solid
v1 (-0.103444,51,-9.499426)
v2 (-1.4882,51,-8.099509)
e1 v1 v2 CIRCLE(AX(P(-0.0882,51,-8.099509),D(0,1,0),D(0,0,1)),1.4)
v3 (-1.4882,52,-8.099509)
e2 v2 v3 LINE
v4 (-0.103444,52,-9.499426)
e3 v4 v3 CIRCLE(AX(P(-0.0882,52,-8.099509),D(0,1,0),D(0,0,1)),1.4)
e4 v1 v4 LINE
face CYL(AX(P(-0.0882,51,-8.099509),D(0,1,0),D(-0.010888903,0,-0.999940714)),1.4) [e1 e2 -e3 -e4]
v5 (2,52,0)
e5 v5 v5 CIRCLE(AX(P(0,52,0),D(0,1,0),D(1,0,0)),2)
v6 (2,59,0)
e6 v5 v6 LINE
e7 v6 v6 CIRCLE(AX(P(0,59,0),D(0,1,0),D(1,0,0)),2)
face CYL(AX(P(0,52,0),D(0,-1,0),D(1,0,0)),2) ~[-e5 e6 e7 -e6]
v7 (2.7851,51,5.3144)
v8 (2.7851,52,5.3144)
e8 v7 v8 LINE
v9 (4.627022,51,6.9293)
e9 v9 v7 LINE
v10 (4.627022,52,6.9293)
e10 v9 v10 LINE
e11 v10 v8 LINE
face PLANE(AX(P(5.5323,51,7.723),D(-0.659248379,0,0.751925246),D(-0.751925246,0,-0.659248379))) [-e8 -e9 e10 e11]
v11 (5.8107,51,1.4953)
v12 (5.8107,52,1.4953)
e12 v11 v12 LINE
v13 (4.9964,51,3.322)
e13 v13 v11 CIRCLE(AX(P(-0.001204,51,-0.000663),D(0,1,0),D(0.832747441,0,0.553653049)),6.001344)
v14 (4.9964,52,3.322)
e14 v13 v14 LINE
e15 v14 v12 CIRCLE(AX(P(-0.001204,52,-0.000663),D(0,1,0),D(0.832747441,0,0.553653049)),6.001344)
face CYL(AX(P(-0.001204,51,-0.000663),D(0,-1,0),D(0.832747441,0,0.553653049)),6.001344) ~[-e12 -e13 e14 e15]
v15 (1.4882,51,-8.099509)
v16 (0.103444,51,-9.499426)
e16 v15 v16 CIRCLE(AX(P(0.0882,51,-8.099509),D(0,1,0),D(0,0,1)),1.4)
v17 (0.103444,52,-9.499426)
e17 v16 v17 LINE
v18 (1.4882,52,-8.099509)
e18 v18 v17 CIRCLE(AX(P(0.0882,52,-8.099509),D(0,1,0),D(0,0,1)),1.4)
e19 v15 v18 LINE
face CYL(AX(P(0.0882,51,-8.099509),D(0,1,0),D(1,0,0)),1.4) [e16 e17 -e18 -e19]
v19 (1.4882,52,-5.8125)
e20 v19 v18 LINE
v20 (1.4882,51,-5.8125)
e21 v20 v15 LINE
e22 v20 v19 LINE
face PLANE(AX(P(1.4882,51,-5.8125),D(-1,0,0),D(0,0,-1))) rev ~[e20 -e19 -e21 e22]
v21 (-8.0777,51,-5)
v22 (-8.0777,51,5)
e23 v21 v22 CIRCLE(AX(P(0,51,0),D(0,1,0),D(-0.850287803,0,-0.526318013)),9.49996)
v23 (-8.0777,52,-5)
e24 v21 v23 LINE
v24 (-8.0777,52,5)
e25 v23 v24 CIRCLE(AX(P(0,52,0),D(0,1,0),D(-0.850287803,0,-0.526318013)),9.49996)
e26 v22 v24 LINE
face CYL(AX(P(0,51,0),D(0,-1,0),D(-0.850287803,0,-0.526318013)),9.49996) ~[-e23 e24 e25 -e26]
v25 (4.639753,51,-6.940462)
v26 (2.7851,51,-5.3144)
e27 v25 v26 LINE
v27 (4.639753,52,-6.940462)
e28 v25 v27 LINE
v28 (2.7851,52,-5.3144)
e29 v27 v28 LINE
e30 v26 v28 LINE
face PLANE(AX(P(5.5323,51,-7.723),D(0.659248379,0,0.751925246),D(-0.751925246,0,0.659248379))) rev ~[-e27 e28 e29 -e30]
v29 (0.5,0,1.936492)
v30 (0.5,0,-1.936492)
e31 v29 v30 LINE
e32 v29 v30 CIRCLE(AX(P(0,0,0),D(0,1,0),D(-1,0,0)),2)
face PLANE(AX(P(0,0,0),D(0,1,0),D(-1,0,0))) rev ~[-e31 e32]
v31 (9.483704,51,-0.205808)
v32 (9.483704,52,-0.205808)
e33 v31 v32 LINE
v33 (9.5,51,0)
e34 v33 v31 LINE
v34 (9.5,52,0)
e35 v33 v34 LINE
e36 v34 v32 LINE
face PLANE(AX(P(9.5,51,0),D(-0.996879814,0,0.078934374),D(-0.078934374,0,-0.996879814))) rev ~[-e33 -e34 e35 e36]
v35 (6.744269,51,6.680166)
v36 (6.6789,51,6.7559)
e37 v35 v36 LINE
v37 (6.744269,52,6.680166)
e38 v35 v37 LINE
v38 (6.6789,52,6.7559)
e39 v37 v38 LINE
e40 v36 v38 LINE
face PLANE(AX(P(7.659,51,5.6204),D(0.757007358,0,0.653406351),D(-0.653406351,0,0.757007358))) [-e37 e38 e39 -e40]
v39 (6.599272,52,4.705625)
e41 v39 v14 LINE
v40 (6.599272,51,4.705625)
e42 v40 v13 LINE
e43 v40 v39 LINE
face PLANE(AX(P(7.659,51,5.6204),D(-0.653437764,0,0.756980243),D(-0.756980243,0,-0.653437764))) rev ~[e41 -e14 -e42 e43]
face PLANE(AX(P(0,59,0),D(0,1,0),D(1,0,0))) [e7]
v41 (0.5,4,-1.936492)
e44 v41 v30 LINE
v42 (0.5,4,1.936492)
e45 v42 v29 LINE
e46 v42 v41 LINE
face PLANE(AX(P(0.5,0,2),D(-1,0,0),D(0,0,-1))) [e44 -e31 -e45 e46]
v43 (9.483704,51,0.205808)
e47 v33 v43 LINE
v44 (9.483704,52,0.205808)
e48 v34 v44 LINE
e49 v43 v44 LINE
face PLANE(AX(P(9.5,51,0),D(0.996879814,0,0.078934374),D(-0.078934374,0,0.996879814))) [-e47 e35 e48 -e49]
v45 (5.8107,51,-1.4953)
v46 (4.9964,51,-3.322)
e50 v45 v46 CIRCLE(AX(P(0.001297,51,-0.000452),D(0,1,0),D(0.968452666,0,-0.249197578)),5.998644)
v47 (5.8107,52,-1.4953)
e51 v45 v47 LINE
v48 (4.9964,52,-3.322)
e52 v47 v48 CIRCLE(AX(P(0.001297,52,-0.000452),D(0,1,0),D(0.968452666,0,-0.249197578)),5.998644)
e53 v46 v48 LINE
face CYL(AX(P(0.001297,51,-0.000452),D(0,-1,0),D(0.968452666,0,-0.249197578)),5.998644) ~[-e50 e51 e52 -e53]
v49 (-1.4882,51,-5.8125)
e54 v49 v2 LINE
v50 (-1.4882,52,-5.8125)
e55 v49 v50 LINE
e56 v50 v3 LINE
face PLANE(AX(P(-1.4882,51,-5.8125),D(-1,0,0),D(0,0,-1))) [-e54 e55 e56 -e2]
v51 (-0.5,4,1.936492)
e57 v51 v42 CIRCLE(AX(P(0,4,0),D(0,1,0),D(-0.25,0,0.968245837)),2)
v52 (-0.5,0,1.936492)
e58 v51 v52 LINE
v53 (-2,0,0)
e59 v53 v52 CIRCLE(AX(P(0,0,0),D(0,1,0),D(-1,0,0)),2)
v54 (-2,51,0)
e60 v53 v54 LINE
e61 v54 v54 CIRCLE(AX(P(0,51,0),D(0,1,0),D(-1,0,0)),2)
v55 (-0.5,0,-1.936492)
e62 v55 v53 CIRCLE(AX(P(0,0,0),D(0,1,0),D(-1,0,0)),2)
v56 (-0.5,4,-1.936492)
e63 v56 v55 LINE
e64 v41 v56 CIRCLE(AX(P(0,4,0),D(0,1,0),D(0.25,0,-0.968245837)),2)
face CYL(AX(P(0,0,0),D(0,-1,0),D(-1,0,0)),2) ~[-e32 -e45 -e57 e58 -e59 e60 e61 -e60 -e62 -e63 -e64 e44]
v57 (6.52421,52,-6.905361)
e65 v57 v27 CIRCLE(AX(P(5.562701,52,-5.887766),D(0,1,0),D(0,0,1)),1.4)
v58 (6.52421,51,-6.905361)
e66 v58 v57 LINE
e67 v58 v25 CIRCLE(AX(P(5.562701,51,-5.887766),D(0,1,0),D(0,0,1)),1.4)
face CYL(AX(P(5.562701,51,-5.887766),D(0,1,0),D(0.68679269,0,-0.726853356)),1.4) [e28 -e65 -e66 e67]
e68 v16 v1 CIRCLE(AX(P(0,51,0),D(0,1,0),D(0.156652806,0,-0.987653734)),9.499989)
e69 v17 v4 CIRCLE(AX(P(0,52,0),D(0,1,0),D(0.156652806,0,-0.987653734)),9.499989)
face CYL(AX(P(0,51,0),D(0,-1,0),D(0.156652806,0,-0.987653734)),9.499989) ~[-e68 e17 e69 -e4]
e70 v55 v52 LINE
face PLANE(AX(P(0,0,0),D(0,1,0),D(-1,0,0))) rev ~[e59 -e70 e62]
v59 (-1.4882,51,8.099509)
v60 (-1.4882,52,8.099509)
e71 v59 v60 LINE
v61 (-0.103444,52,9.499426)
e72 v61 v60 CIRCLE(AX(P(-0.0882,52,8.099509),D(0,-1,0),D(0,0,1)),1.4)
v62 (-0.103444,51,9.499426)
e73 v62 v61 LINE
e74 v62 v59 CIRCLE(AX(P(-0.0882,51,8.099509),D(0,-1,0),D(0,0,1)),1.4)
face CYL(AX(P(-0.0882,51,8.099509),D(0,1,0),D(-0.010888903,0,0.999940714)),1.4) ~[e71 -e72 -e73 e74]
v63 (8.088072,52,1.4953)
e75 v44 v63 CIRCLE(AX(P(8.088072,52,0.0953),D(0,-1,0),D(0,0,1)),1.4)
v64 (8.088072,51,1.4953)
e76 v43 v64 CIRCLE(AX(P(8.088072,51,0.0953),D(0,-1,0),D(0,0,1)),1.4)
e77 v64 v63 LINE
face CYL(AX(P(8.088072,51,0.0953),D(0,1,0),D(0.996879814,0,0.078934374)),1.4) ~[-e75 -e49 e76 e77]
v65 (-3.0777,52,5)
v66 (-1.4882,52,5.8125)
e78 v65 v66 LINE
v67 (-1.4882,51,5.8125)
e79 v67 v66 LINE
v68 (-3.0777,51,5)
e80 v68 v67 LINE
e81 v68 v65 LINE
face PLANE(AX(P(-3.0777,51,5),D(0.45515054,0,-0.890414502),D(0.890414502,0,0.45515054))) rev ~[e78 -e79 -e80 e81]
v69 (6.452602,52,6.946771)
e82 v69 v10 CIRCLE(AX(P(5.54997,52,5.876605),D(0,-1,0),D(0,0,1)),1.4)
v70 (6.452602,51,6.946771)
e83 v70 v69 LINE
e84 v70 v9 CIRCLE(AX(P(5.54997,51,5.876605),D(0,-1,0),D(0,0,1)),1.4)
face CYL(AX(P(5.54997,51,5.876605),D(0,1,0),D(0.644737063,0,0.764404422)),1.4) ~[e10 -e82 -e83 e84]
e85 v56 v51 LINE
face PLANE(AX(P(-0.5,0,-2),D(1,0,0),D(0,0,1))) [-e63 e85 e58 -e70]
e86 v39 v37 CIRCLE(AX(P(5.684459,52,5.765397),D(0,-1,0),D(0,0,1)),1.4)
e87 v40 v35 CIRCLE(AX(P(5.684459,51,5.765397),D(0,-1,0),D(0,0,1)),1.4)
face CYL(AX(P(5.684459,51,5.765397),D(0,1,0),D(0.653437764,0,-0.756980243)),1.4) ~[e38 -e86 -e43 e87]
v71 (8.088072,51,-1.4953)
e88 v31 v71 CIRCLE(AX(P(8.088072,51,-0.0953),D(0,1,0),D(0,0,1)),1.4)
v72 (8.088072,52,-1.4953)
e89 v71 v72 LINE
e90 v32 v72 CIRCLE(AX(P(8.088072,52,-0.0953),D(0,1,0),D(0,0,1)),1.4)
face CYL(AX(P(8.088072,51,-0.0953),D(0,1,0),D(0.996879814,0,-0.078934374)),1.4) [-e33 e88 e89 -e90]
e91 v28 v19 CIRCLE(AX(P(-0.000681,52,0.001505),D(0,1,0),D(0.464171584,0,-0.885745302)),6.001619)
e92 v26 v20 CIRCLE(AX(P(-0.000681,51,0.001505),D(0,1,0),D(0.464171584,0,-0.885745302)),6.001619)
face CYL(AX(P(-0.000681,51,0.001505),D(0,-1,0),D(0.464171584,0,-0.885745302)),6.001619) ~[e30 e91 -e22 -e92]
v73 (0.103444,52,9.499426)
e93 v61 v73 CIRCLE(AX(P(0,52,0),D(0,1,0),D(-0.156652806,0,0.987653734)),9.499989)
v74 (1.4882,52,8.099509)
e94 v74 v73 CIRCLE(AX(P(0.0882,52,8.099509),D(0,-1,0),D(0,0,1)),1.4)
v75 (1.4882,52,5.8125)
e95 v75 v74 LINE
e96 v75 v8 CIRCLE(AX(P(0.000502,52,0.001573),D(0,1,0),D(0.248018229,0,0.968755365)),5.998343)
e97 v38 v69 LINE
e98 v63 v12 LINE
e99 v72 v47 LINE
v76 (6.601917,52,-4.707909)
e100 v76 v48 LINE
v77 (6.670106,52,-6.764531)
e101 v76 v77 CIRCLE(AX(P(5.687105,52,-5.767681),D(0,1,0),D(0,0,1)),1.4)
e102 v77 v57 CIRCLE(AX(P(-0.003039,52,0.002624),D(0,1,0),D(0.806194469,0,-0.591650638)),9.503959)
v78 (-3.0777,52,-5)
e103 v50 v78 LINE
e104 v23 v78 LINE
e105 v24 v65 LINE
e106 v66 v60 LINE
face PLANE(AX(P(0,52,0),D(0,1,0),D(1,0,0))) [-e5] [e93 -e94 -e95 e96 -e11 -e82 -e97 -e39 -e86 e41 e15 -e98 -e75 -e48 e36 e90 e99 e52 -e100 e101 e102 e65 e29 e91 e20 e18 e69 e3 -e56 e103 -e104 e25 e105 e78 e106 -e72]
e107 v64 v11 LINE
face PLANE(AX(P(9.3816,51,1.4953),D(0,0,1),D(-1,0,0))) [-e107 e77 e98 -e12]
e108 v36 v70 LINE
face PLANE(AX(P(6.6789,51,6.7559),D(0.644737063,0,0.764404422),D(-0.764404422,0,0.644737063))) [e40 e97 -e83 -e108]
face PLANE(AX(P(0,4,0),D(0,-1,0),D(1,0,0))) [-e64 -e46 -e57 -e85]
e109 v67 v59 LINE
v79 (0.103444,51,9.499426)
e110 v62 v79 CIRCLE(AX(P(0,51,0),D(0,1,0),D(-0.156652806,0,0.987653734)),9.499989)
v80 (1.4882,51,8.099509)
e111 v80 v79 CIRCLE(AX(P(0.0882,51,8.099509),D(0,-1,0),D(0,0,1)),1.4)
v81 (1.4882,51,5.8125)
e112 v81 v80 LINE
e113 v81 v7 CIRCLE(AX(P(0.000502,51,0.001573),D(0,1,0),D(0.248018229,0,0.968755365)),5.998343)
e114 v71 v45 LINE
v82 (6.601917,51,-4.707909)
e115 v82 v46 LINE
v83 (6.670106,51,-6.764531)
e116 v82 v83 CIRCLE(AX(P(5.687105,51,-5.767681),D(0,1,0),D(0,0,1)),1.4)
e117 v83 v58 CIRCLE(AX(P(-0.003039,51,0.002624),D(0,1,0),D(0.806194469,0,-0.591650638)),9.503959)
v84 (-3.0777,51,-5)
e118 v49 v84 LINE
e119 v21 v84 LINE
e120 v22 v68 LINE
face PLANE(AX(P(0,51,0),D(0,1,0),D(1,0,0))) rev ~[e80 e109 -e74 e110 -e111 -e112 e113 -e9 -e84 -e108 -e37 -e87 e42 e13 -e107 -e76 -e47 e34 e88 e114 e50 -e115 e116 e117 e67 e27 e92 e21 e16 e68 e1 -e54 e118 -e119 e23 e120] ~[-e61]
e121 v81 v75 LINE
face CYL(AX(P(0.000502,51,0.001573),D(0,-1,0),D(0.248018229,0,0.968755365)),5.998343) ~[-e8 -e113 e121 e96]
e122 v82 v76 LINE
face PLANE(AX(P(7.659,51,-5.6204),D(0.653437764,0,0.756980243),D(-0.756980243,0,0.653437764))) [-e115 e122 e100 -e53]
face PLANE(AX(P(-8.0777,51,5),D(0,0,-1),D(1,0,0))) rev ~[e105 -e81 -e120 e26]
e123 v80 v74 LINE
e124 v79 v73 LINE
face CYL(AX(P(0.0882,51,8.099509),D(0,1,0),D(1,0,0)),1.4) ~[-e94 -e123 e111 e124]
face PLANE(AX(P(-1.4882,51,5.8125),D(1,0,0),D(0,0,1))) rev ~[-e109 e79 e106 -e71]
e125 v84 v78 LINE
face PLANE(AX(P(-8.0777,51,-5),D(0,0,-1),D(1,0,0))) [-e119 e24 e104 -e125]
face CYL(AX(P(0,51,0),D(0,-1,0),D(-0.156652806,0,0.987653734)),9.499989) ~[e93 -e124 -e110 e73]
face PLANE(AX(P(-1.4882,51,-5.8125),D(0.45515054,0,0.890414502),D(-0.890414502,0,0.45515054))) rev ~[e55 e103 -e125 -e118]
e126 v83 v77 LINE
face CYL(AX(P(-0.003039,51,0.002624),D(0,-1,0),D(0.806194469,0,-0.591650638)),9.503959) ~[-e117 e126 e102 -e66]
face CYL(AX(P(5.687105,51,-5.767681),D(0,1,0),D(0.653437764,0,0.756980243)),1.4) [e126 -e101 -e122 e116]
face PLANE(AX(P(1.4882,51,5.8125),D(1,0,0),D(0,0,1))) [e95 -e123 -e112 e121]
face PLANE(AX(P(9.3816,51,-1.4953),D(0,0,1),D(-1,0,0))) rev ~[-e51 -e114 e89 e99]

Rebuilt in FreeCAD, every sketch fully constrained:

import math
import FreeCAD as App
import Part
import Sketcher
Q = App.Units.Quantity


def edges_at(feature, points):
    """Names of the edges that pass closest to the given points."""
    edges = feature.Shape.Edges
    near = lambda p: min(range(len(edges)), key=lambda i: edges[i].distToShape(Part.Vertex(*p))[0])
    return sorted({f"Edge{near(p) + 1}" for p in points})


def add_polygon(sketch, points):
    """Adds a closed chain of lines whose ends are joined by coincident constraints."""
    first, n = sketch.GeometryCount, len(points)
    for a, b in zip(points, points[1:] + points[:1]):
        sketch.addGeometry(Part.LineSegment(App.Vector(*a, 0), App.Vector(*b, 0)), False)
    for i in range(n):
        sketch.addConstraint(Sketcher.Constraint("Coincident", first + i, 2, first + (i + 1) % n, 1))

doc = App.newDocument("Part")
body = doc.addObject("PartDesign::Body", "Body")

# Sketch on XZ plane
sketch1 = body.newObject("Sketcher::SketchObject", "Sketch")
sketch1.AttachmentSupport = (doc.getObject("XZ_Plane"), [""])
sketch1.MapMode = "FlatFace"
sketch1.addGeometry(Part.Circle(App.Vector(0, 0, 0), App.Vector(0, 0, 1), 2), False)
sketch1.addConstraint([
    Sketcher.Constraint("Coincident", 0, 3, -1, 1),
    Sketcher.Constraint("Diameter", 0, Q("4 mm")),
])
pad1 = body.newObject("PartDesign::Pad", "Pad")
pad1.Profile = sketch1
pad1.Length = 51
pad1.Reversed = True

# Sketch on XZ plane
sketch2 = body.newObject("Sketcher::SketchObject", "Sketch001")
sketch2.AttachmentSupport = (doc.getObject("XZ_Plane"), [""])
sketch2.MapMode = "FlatFace"
add_polygon(sketch2, [(0.5, 2), (-0.5, 2), (-0.5, -2), (0.5, -2)])  # lines 0-3
sketch2.addConstraint([
    Sketcher.Constraint("Horizontal", 0),
    Sketcher.Constraint("Vertical", 1),
    Sketcher.Constraint("Horizontal", 2),
    Sketcher.Constraint("Vertical", 3),
    Sketcher.Constraint("Symmetric", 0, 2, 2, 2, -1, 1),
    Sketcher.Constraint("DistanceX", 0, 2, 0, 1, Q("1 mm")),
    Sketcher.Constraint("DistanceY", 1, 2, 1, 1, Q("4 mm")),
])
pocket1 = body.newObject("PartDesign::Pocket", "Pocket")
pocket1.Profile = sketch2
pocket1.Length = 4

# Sketch on XZ plane
sketch3 = body.newObject("Sketcher::SketchObject", "Sketch002")
sketch3.AttachmentSupport = (doc.getObject("XZ_Plane"), [""])
sketch3.MapMode = "FlatFace"
sketch3.AttachmentOffset = App.Placement(App.Vector(0, 0, -51), App.Rotation())
sketch3.addGeometry([
    Part.LineSegment(App.Vector(9.3816, 1.4953, 0), App.Vector(9.5, 0, 0)),  # 0
    Part.LineSegment(App.Vector(9.5, 0, 0), App.Vector(9.3816, -1.4953, 0)),  # 1
    Part.LineSegment(App.Vector(9.3816, -1.4953, 0), App.Vector(5.8107, -1.4953, 0)),  # 2
    Part.ArcOfCircle(Part.Circle(App.Vector(0.001297, -0.000452, 0), App.Vector(0, 0, 1), 5.998644), math.radians(-33.622349), math.radians(-14.430034)),  # 3
    Part.LineSegment(App.Vector(4.9964, -3.322, 0), App.Vector(7.659, -5.6204, 0)),  # 4
    Part.ArcOfCircle(Part.Circle(App.Vector(-0.003039, 0.002624, 0), App.Vector(0, 0, 1), 9.503959), math.radians(-54.378745), math.radians(-36.27423)),  # 5
    Part.LineSegment(App.Vector(5.5323, -7.723, 0), App.Vector(2.7851, -5.3144, 0)),  # 6
    Part.ArcOfCircle(Part.Circle(App.Vector(-0.000681, 0.001505, 0), App.Vector(0, 0, 1), 6.001619), math.radians(-75.636082), math.radians(-62.343378)),  # 7
    Part.LineSegment(App.Vector(1.4882, -5.8125, 0), App.Vector(1.4882, -9.3827, 0)),  # 8
    Part.ArcOfCircle(Part.Circle(App.Vector(0, 0, 0), App.Vector(0, 0, 1), 9.499989), math.radians(-99.012666), math.radians(-80.987334)),  # 9
    Part.LineSegment(App.Vector(-1.4882, -9.3827, 0), App.Vector(-1.4882, -5.8125, 0)),  # 10
    Part.LineSegment(App.Vector(-1.4882, -5.8125, 0), App.Vector(-3.0777, -5, 0)),  # 11
    Part.LineSegment(App.Vector(-3.0777, -5, 0), App.Vector(-8.0777, -5, 0)),  # 12
    Part.ArcOfCircle(Part.Circle(App.Vector(0, 0, 0), App.Vector(0, 0, 1), 9.49996), math.radians(148.242986), math.radians(211.757014)),  # 13
    Part.LineSegment(App.Vector(-8.0777, 5, 0), App.Vector(-3.0777, 5, 0)),  # 14
    Part.LineSegment(App.Vector(-3.0777, 5, 0), App.Vector(-1.4882, 5.8125, 0)),  # 15
    Part.LineSegment(App.Vector(-1.4882, 5.8125, 0), App.Vector(-1.4882, 9.3827, 0)),  # 16
    Part.ArcOfCircle(Part.Circle(App.Vector(0, 0, 0), App.Vector(0, 0, 1), 9.499989), math.radians(80.987334), math.radians(99.012666)),  # 17
    Part.LineSegment(App.Vector(1.4882, 9.3827, 0), App.Vector(1.4882, 5.8125, 0)),  # 18
    Part.ArcOfCircle(Part.Circle(App.Vector(0.000502, 0.001573, 0), App.Vector(0, 0, 1), 5.998343), math.radians(62.339732), math.radians(75.639728)),  # 19
    Part.LineSegment(App.Vector(2.7851, 5.3144, 0), App.Vector(5.5323, 7.723, 0)),  # 20
    Part.LineSegment(App.Vector(5.5323, 7.723, 0), App.Vector(6.6789, 6.7559, 0)),  # 21
    Part.LineSegment(App.Vector(6.6789, 6.7559, 0), App.Vector(7.659, 5.6204, 0)),  # 22
    Part.LineSegment(App.Vector(7.659, 5.6204, 0), App.Vector(4.9964, 3.322, 0)),  # 23
    Part.ArcOfCircle(Part.Circle(App.Vector(-0.001204, -0.000663, 0), App.Vector(0, 0, 1), 6.001344), math.radians(14.434392), math.radians(33.61799)),  # 24
    Part.LineSegment(App.Vector(5.8107, 1.4953, 0), App.Vector(9.3816, 1.4953, 0)),  # 25
], False)
sketch3.addConstraint([
    Sketcher.Constraint("Coincident", 0, 2, 1, 1),
    Sketcher.Constraint("Coincident", 1, 2, 2, 1),
    Sketcher.Constraint("Coincident", 2, 2, 3, 2),
    Sketcher.Constraint("Coincident", 3, 1, 4, 1),
    Sketcher.Constraint("Coincident", 4, 2, 5, 2),
    Sketcher.Constraint("Coincident", 5, 1, 6, 1),
    Sketcher.Constraint("Coincident", 6, 2, 7, 2),
    Sketcher.Constraint("Coincident", 7, 1, 8, 1),
    Sketcher.Constraint("Coincident", 8, 2, 9, 2),
    Sketcher.Constraint("Coincident", 9, 1, 10, 1),
    Sketcher.Constraint("Coincident", 10, 2, 11, 1),
    Sketcher.Constraint("Coincident", 11, 2, 12, 1),
    Sketcher.Constraint("Coincident", 12, 2, 13, 2),
    Sketcher.Constraint("Coincident", 13, 1, 14, 1),
    Sketcher.Constraint("Coincident", 14, 2, 15, 1),
    Sketcher.Constraint("Coincident", 15, 2, 16, 1),
    Sketcher.Constraint("Coincident", 16, 2, 17, 2),
    Sketcher.Constraint("Coincident", 17, 1, 18, 1),
    Sketcher.Constraint("Coincident", 18, 2, 19, 2),
    Sketcher.Constraint("Coincident", 19, 1, 20, 1),
    Sketcher.Constraint("Coincident", 20, 2, 21, 1),
    Sketcher.Constraint("Coincident", 21, 2, 22, 1),
    Sketcher.Constraint("Coincident", 22, 2, 23, 1),
    Sketcher.Constraint("Coincident", 23, 2, 24, 2),
    Sketcher.Constraint("Coincident", 24, 1, 25, 1),
    Sketcher.Constraint("Coincident", 25, 2, 0, 1),
    Sketcher.Constraint("Horizontal", 2),
    Sketcher.Constraint("Vertical", 8),
    Sketcher.Constraint("Vertical", 10),
    Sketcher.Constraint("Horizontal", 12),
    Sketcher.Constraint("Horizontal", 14),
    Sketcher.Constraint("Vertical", 16),
    Sketcher.Constraint("Vertical", 18),
    Sketcher.Constraint("Horizontal", 25),
    Sketcher.Constraint("Coincident", 9, 3, -1, 1),
    Sketcher.Constraint("Coincident", 13, 3, -1, 1),
    Sketcher.Constraint("Coincident", 17, 3, -1, 1),
    Sketcher.Constraint("Equal", 9, 13),
    Sketcher.Constraint("Equal", 13, 17),
    Sketcher.Constraint("Symmetric", 7, 1, 15, 2, -1, 1),
    Sketcher.Constraint("Symmetric", 10, 2, 18, 2, -1, 1),
    Sketcher.Constraint("Symmetric", 7, 3, 19, 3, -2),
    Sketcher.Constraint("Symmetric", 3, 3, 24, 3, -2),
    Sketcher.Constraint("Symmetric", 7, 1, 10, 2, -2),
    Sketcher.Constraint("Symmetric", 11, 2, 14, 2, -1),
    Sketcher.Constraint("Symmetric", 6, 2, 19, 1, -1),
    Sketcher.Constraint("Symmetric", 5, 1, 20, 2, -1),
    Sketcher.Constraint("Symmetric", 4, 2, 22, 2, -1),
    Sketcher.Constraint("Symmetric", 3, 1, 23, 2, -1),
    Sketcher.Constraint("Symmetric", 2, 2, 24, 1, -1),
    Sketcher.Constraint("PointOnObject", 0, 2, -1),
    Sketcher.Constraint("Perpendicular", 22, 23),
    Sketcher.Constraint("Vertical", 1, 2, 25, 2),
    Sketcher.Constraint("Equal", 1, 21),
    Sketcher.Constraint("Equal", 21, 22),
    Sketcher.Constraint("DistanceX", 12, 2, 12, 1, Q("5 mm")),
    Sketcher.Constraint("DistanceY", 11, 2, -1, 1, Q("5 mm")),
    Sketcher.Constraint("Radius", 9, Q("9.5 mm")),
    Sketcher.Constraint("Angle", 22, Q("-49.201 deg")),
    Sketcher.Constraint("Radius", 5, Q("9.504 mm")),
    Sketcher.Constraint("Distance", 0, Q("1.5 mm")),
    Sketcher.Constraint("DistanceX", -1, 1, 0, 2, Q("9.5 mm")),
    Sketcher.Constraint("Radius", 3, Q("5.9986 mm")),
    Sketcher.Constraint("Radius", 7, Q("6.0016 mm")),
    Sketcher.Constraint("Radius", 19, Q("5.9983 mm")),
    Sketcher.Constraint("Radius", 24, Q("6.0013 mm")),
    Sketcher.Constraint("DistanceX", 2, 2, 2, 1, Q("3.571 mm")),
    Sketcher.Constraint("DistanceY", 4, 2, 3, 3, Q("5.62 mm")),
    Sketcher.Constraint("DistanceY", 5, 3, 16, 2, Q("9.38 mm")),
    Sketcher.Constraint("DistanceY", 8, 2, 8, 1, Q("3.5702 mm")),
    Sketcher.Constraint("DistanceX", 5, 3, -1, 1, Q("0.003 mm")),
    Sketcher.Constraint("DistanceX", -1, 1, 6, 2, Q("2.785 mm")),
])
pad2 = body.newObject("PartDesign::Pad", "Pad001")
pad2.Profile = sketch3
pad2.Length = 1
pad2.Reversed = True
doc.recompute()

fillet = body.newObject("PartDesign::Fillet", "Fillet")
fillet.Base = (pad2, edges_at(pad2, [
    (1.488, 51.5, 9.383),
    (-1.488, 51.5, 9.383),
    (9.382, 51.5, 1.495),
    (9.382, 51.5, -1.495),
    (7.659, 51.5, -5.62),
    (5.532, 51.5, -7.723),
    (1.488, 51.5, -9.383),
    (-1.488, 51.5, -9.383),
    (5.532, 51.5, 7.723),
    (7.659, 51.5, 5.62),
]))
fillet.Radius = 1.4

# Sketch on XZ plane
sketch4 = body.newObject("Sketcher::SketchObject", "Sketch003")
sketch4.AttachmentSupport = (doc.getObject("XZ_Plane"), [""])
sketch4.MapMode = "FlatFace"
sketch4.AttachmentOffset = App.Placement(App.Vector(0, 0, -52), App.Rotation())
sketch4.addGeometry(Part.Circle(App.Vector(0, 0, 0), App.Vector(0, 0, 1), 2), False)
sketch4.addConstraint([
    Sketcher.Constraint("Coincident", 0, 3, -1, 1),
    Sketcher.Constraint("Diameter", 0, Q("4 mm")),
])
pad3 = body.newObject("PartDesign::Pad", "Pad002")
pad3.Profile = sketch4
pad3.Length = 7
pad3.Reversed = True

doc.recompute()
